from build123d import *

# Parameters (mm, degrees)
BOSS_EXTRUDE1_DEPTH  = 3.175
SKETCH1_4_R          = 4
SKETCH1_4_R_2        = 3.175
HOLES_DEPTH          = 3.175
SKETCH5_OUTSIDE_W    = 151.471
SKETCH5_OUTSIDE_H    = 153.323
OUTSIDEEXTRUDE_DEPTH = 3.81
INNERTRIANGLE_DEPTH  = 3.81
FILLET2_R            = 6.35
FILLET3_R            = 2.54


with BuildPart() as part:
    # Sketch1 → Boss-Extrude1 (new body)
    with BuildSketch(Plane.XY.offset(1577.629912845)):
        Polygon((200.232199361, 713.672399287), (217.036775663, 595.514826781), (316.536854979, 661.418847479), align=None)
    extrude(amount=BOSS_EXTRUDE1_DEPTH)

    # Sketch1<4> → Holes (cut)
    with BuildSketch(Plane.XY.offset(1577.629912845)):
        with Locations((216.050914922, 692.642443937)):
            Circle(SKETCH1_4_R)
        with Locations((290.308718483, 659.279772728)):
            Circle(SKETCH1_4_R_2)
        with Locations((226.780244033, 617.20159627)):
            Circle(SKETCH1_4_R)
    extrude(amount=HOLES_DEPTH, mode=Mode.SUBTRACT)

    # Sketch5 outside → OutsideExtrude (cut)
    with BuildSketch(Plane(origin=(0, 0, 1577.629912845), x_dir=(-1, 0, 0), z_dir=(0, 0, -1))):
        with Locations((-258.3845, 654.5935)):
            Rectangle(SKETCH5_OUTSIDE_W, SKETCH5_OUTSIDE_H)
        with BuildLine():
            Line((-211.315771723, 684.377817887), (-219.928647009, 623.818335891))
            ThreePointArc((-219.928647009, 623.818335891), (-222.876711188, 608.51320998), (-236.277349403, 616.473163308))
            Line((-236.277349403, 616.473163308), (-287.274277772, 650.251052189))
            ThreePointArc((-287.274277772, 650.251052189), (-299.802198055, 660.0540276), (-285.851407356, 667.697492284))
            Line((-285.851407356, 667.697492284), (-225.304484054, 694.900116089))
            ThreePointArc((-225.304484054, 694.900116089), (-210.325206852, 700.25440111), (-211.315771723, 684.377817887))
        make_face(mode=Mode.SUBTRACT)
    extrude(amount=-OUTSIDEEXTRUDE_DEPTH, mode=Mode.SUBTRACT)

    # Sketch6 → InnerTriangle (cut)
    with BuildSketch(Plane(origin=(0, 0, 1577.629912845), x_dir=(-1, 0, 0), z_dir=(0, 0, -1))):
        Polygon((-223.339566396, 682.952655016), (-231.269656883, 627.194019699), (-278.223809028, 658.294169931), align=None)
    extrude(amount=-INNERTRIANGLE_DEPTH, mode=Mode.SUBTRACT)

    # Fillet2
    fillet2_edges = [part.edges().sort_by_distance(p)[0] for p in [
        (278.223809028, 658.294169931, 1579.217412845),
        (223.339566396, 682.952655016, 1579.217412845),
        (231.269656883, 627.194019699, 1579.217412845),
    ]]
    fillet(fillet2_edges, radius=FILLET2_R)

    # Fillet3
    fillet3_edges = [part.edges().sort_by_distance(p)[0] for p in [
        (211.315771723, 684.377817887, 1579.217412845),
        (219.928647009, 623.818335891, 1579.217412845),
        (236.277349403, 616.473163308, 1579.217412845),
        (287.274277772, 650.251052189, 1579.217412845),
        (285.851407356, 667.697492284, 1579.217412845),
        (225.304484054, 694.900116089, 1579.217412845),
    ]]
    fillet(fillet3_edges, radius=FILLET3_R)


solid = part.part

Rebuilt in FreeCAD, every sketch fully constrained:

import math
import FreeCAD as App
import Part
import Sketcher
from FreeCAD import Vector
Q = App.Units.Quantity


def edges_at(feature, points):
    """Names of the edges that pass closest to the given points."""
    edges = feature.Shape.Edges
    near = lambda p: min(range(len(edges)), key=lambda i: edges[i].distToShape(Part.Vertex(*p))[0])
    return sorted({f"Edge{near(p) + 1}" for p in points})

doc = App.newDocument("Part")
body = doc.addObject("PartDesign::Body", "Body")

# Sketch on XY plane
sketch1 = body.newObject("Sketcher::SketchObject", "Sketch")
sketch1.AttachmentSupport = (doc.getObject("XY_Plane"), [""])
sketch1.MapMode = "FlatFace"
sketch1.AttachmentOffset = App.Placement(Vector(0, 0, 1577.629913), App.Rotation())
sketch1.addGeometry([
    Part.LineSegment(Vector(200, 714, 0), Vector(217, 596, 0)),
    Part.LineSegment(Vector(217, 596, 0), Vector(317, 661, 0)),
    Part.LineSegment(Vector(317, 661, 0), Vector(200, 714, 0)),
], False)
sketch1.addConstraint([
    Sketcher.Constraint("Coincident", 0, 2, 1, 1),
    Sketcher.Constraint("Coincident", 1, 2, 2, 1),
    Sketcher.Constraint("Coincident", 2, 2, 0, 1),
    Sketcher.Constraint("Equal", 0, 1),
    Sketcher.Constraint("DistanceX", -1, 1, 2, 2, 200.232199),
    Sketcher.Constraint("DistanceY", -1, 1, 2, 2, 713.672399),
    Sketcher.Constraint("Distance", 0, 119.346578),
    Sketcher.Constraint("Distance", 2, 127.503751),
    Sketcher.Constraint("DistanceX", 0, 2, 1, 2, 99.500079),
])
pad1 = body.newObject("PartDesign::Pad", "Pad")
pad1.Profile = sketch1
pad1.Length = Q("0.125 in")

# Sketch on XY plane
sketch2 = body.newObject("Sketcher::SketchObject", "Sketch001")
sketch2.AttachmentSupport = (doc.getObject("XY_Plane"), [""])
sketch2.MapMode = "FlatFace"
sketch2.AttachmentOffset = App.Placement(Vector(0, 0, 1577.629913), App.Rotation())
sketch2.addGeometry([
    Part.Circle(Vector(216.1, 692.6, 0), Vector(0, 0, 1), 4),
    Part.Circle(Vector(290.3, 659.3, 0), Vector(0, 0, 1), 3.2),
    Part.Circle(Vector(226.8, 617.2, 0), Vector(0, 0, 1), 4),
], False)
sketch2.addConstraint([
    Sketcher.Constraint("Equal", 0, 2),
    Sketcher.Constraint("Diameter", 1, Q("0.25 in")),
    Sketcher.Constraint("Diameter", 0, 8.0),
    Sketcher.Constraint("DistanceX", -1, 1, 1, 3, 290.308718),
    Sketcher.Constraint("DistanceY", 1, 3, 0, 3, 33.362671),
    Sketcher.Constraint("DistanceX", 0, 3, 2, 3, 10.729329),
    Sketcher.Constraint("DistanceX", -1, 1, 0, 3, 216.050915),
    Sketcher.Constraint("DistanceY", -1, 1, 0, 3, 692.642444),
    Sketcher.Constraint("DistanceY", -1, 1, 2, 3, 617.201596),
])
pocket1 = body.newObject("PartDesign::Pocket", "Pocket")
pocket1.Profile = sketch2
pocket1.Length = Q("0.125 in")
pocket1.Reversed = True

# Sketch on XY plane
sketch3 = body.newObject("Sketcher::SketchObject", "Sketch002")
sketch3.AttachmentSupport = (doc.getObject("XY_Plane"), [""])
sketch3.MapMode = "FlatFace"
sketch3.AttachmentOffset = App.Placement(Vector(0, 0, 1577.629913), App.Rotation())
sketch3.addGeometry([
    Part.LineSegment(Vector(334, 731, 0), Vector(334, 578, 0)),  # 0
    Part.LineSegment(Vector(334, 578, 0), Vector(183, 578, 0)),  # 1
    Part.LineSegment(Vector(183, 578, 0), Vector(183, 731, 0)),  # 2
    Part.LineSegment(Vector(183, 731, 0), Vector(334, 731, 0)),  # 3
    Part.ArcOfCircle(Part.Circle(Vector(216, 693, 0), Vector(0, 0, 1), 10), math.radians(14), math.radians(240)),  # 4
    Part.LineSegment(Vector(211, 684, 0), Vector(220, 624, 0)),  # 5
    Part.ArcOfCircle(Part.Circle(Vector(227, 617, 0), Vector(0, 0, 1), 10), math.radians(136), math.radians(356)),  # 6
    Part.LineSegment(Vector(236, 616, 0), Vector(287, 650, 0)),  # 7
    Part.ArcOfCircle(Part.Circle(Vector(290, 659, 0), Vector(0, 0, 1), 10), math.radians(-109), math.radians(118)),  # 8
    Part.LineSegment(Vector(286, 668, 0), Vector(225, 695, 0)),  # 9
], False)
sketch3.addConstraint([
    Sketcher.Constraint("Coincident", 0, 2, 1, 1),
    Sketcher.Constraint("Coincident", 1, 2, 2, 1),
    Sketcher.Constraint("Coincident", 2, 2, 3, 1),
    Sketcher.Constraint("Coincident", 3, 2, 0, 1),
    Sketcher.Constraint("Coincident", 4, 2, 5, 1),
    Sketcher.Constraint("Coincident", 5, 2, 6, 1),
    Sketcher.Constraint("Coincident", 6, 2, 7, 1),
    Sketcher.Constraint("Coincident", 7, 2, 8, 1),
    Sketcher.Constraint("Coincident", 8, 2, 9, 1),
    Sketcher.Constraint("Coincident", 9, 2, 4, 1),
    Sketcher.Constraint("Vertical", 0),
    Sketcher.Constraint("Horizontal", 1),
    Sketcher.Constraint("Vertical", 2),
    Sketcher.Constraint("Horizontal", 3),
    Sketcher.Constraint("Equal", 4, 6),
    Sketcher.Constraint("Equal", 6, 8),
    Sketcher.Constraint("Equal", 5, 7),
    Sketcher.Constraint("Radius", 4, Q("0.375 in")),
    Sketcher.Constraint("DistanceX", 1, 2, 1, 1, 151.471),
    Sketcher.Constraint("DistanceY", 0, 2, 0, 1, 153.323),
    Sketcher.Constraint("DistanceX", -1, 1, 0, 2, 334.12),
    Sketcher.Constraint("DistanceY", -1, 1, 0, 2, 577.932),
    Sketcher.Constraint("DistanceY", 4, 2, 9, 2, 10.522298),
    Sketcher.Constraint("Distance", 9, 66.377049),
    Sketcher.Constraint("DistanceX", -1, 1, 8, 3, 290.308718),
    Sketcher.Constraint("DistanceX", -1, 1, 4, 2, 211.315772),
    Sketcher.Constraint("DistanceX", -1, 1, 6, 2, 236.277349),
    Sketcher.Constraint("DistanceX", 4, 3, 6, 3, 10.729329),
    Sketcher.Constraint("DistanceY", 8, 3, 4, 3, 33.362671),
    Sketcher.Constraint("DistanceY", 6, 3, 4, 2, 67.176222),
    Sketcher.Constraint("DistanceY", 6, 3, 5, 2, 6.61674),
    Sketcher.Constraint("DistanceY", 5, 2, 4, 3, 68.824108),
    Sketcher.Constraint("DistanceY", -1, 1, 4, 3, 692.642444),
])
pocket2 = body.newObject("PartDesign::Pocket", "Pocket001")
pocket2.Profile = sketch3
pocket2.Length = Q("0.15 in")
pocket2.Reversed = True

# Sketch on XY plane
sketch4 = body.newObject("Sketcher::SketchObject", "Sketch003")
sketch4.AttachmentSupport = (doc.getObject("XY_Plane"), [""])
sketch4.MapMode = "FlatFace"
sketch4.AttachmentOffset = App.Placement(Vector(0, 0, 1577.629913), App.Rotation())
sketch4.addGeometry([
    Part.LineSegment(Vector(231, 627, 0), Vector(223, 683, 0)),
    Part.LineSegment(Vector(223, 683, 0), Vector(278, 658, 0)),
    Part.LineSegment(Vector(278, 658, 0), Vector(231, 627, 0)),
], False)
sketch4.addConstraint([
    Sketcher.Constraint("Coincident", 0, 2, 1, 1),
    Sketcher.Constraint("Coincident", 1, 2, 2, 1),
    Sketcher.Constraint("Coincident", 2, 2, 0, 1),
    Sketcher.Constraint("Equal", 0, 2),
    Sketcher.Constraint("DistanceY", -1, 1, 0, 2, Q("26.8878998 in")),
    Sketcher.Constraint("DistanceX", -1, 1, 1, 2, 278.223809),
    Sketcher.Constraint("DistanceY", -1, 1, 1, 2, 658.29417),
    Sketcher.Constraint("DistanceY", -1, 1, 2, 2, 627.19402),
    Sketcher.Constraint("DistanceX", 0, 2, 2, 2, 7.93009),
])
pocket3 = body.newObject("PartDesign::Pocket", "Pocket002")
pocket3.Profile = sketch4
pocket3.Length = Q("0.15 in")
pocket3.Reversed = True
doc.recompute()

fillet = body.newObject("PartDesign::Fillet", "Fillet")
fillet.Base = (pocket3, edges_at(pocket3, [(278.224, 658.294, 1579.217), (223.34, 682.953, 1579.217), (231.27, 627.194, 1579.217)]))
fillet.Radius = Q("0.25 in")
doc.recompute()

fillet2 = body.newObject("PartDesign::Fillet", "Fillet001")
fillet2.Base = (fillet, edges_at(fillet, [
    (211.316, 684.378, 1579.217),
    (219.929, 623.818, 1579.217),
    (236.277, 616.473, 1579.217),
    (287.274, 650.251, 1579.217),
    (285.851, 667.697, 1579.217),
    (225.304, 694.9, 1579.217),
]))
fillet2.Radius = Q("0.1 in")

doc.recompute()
